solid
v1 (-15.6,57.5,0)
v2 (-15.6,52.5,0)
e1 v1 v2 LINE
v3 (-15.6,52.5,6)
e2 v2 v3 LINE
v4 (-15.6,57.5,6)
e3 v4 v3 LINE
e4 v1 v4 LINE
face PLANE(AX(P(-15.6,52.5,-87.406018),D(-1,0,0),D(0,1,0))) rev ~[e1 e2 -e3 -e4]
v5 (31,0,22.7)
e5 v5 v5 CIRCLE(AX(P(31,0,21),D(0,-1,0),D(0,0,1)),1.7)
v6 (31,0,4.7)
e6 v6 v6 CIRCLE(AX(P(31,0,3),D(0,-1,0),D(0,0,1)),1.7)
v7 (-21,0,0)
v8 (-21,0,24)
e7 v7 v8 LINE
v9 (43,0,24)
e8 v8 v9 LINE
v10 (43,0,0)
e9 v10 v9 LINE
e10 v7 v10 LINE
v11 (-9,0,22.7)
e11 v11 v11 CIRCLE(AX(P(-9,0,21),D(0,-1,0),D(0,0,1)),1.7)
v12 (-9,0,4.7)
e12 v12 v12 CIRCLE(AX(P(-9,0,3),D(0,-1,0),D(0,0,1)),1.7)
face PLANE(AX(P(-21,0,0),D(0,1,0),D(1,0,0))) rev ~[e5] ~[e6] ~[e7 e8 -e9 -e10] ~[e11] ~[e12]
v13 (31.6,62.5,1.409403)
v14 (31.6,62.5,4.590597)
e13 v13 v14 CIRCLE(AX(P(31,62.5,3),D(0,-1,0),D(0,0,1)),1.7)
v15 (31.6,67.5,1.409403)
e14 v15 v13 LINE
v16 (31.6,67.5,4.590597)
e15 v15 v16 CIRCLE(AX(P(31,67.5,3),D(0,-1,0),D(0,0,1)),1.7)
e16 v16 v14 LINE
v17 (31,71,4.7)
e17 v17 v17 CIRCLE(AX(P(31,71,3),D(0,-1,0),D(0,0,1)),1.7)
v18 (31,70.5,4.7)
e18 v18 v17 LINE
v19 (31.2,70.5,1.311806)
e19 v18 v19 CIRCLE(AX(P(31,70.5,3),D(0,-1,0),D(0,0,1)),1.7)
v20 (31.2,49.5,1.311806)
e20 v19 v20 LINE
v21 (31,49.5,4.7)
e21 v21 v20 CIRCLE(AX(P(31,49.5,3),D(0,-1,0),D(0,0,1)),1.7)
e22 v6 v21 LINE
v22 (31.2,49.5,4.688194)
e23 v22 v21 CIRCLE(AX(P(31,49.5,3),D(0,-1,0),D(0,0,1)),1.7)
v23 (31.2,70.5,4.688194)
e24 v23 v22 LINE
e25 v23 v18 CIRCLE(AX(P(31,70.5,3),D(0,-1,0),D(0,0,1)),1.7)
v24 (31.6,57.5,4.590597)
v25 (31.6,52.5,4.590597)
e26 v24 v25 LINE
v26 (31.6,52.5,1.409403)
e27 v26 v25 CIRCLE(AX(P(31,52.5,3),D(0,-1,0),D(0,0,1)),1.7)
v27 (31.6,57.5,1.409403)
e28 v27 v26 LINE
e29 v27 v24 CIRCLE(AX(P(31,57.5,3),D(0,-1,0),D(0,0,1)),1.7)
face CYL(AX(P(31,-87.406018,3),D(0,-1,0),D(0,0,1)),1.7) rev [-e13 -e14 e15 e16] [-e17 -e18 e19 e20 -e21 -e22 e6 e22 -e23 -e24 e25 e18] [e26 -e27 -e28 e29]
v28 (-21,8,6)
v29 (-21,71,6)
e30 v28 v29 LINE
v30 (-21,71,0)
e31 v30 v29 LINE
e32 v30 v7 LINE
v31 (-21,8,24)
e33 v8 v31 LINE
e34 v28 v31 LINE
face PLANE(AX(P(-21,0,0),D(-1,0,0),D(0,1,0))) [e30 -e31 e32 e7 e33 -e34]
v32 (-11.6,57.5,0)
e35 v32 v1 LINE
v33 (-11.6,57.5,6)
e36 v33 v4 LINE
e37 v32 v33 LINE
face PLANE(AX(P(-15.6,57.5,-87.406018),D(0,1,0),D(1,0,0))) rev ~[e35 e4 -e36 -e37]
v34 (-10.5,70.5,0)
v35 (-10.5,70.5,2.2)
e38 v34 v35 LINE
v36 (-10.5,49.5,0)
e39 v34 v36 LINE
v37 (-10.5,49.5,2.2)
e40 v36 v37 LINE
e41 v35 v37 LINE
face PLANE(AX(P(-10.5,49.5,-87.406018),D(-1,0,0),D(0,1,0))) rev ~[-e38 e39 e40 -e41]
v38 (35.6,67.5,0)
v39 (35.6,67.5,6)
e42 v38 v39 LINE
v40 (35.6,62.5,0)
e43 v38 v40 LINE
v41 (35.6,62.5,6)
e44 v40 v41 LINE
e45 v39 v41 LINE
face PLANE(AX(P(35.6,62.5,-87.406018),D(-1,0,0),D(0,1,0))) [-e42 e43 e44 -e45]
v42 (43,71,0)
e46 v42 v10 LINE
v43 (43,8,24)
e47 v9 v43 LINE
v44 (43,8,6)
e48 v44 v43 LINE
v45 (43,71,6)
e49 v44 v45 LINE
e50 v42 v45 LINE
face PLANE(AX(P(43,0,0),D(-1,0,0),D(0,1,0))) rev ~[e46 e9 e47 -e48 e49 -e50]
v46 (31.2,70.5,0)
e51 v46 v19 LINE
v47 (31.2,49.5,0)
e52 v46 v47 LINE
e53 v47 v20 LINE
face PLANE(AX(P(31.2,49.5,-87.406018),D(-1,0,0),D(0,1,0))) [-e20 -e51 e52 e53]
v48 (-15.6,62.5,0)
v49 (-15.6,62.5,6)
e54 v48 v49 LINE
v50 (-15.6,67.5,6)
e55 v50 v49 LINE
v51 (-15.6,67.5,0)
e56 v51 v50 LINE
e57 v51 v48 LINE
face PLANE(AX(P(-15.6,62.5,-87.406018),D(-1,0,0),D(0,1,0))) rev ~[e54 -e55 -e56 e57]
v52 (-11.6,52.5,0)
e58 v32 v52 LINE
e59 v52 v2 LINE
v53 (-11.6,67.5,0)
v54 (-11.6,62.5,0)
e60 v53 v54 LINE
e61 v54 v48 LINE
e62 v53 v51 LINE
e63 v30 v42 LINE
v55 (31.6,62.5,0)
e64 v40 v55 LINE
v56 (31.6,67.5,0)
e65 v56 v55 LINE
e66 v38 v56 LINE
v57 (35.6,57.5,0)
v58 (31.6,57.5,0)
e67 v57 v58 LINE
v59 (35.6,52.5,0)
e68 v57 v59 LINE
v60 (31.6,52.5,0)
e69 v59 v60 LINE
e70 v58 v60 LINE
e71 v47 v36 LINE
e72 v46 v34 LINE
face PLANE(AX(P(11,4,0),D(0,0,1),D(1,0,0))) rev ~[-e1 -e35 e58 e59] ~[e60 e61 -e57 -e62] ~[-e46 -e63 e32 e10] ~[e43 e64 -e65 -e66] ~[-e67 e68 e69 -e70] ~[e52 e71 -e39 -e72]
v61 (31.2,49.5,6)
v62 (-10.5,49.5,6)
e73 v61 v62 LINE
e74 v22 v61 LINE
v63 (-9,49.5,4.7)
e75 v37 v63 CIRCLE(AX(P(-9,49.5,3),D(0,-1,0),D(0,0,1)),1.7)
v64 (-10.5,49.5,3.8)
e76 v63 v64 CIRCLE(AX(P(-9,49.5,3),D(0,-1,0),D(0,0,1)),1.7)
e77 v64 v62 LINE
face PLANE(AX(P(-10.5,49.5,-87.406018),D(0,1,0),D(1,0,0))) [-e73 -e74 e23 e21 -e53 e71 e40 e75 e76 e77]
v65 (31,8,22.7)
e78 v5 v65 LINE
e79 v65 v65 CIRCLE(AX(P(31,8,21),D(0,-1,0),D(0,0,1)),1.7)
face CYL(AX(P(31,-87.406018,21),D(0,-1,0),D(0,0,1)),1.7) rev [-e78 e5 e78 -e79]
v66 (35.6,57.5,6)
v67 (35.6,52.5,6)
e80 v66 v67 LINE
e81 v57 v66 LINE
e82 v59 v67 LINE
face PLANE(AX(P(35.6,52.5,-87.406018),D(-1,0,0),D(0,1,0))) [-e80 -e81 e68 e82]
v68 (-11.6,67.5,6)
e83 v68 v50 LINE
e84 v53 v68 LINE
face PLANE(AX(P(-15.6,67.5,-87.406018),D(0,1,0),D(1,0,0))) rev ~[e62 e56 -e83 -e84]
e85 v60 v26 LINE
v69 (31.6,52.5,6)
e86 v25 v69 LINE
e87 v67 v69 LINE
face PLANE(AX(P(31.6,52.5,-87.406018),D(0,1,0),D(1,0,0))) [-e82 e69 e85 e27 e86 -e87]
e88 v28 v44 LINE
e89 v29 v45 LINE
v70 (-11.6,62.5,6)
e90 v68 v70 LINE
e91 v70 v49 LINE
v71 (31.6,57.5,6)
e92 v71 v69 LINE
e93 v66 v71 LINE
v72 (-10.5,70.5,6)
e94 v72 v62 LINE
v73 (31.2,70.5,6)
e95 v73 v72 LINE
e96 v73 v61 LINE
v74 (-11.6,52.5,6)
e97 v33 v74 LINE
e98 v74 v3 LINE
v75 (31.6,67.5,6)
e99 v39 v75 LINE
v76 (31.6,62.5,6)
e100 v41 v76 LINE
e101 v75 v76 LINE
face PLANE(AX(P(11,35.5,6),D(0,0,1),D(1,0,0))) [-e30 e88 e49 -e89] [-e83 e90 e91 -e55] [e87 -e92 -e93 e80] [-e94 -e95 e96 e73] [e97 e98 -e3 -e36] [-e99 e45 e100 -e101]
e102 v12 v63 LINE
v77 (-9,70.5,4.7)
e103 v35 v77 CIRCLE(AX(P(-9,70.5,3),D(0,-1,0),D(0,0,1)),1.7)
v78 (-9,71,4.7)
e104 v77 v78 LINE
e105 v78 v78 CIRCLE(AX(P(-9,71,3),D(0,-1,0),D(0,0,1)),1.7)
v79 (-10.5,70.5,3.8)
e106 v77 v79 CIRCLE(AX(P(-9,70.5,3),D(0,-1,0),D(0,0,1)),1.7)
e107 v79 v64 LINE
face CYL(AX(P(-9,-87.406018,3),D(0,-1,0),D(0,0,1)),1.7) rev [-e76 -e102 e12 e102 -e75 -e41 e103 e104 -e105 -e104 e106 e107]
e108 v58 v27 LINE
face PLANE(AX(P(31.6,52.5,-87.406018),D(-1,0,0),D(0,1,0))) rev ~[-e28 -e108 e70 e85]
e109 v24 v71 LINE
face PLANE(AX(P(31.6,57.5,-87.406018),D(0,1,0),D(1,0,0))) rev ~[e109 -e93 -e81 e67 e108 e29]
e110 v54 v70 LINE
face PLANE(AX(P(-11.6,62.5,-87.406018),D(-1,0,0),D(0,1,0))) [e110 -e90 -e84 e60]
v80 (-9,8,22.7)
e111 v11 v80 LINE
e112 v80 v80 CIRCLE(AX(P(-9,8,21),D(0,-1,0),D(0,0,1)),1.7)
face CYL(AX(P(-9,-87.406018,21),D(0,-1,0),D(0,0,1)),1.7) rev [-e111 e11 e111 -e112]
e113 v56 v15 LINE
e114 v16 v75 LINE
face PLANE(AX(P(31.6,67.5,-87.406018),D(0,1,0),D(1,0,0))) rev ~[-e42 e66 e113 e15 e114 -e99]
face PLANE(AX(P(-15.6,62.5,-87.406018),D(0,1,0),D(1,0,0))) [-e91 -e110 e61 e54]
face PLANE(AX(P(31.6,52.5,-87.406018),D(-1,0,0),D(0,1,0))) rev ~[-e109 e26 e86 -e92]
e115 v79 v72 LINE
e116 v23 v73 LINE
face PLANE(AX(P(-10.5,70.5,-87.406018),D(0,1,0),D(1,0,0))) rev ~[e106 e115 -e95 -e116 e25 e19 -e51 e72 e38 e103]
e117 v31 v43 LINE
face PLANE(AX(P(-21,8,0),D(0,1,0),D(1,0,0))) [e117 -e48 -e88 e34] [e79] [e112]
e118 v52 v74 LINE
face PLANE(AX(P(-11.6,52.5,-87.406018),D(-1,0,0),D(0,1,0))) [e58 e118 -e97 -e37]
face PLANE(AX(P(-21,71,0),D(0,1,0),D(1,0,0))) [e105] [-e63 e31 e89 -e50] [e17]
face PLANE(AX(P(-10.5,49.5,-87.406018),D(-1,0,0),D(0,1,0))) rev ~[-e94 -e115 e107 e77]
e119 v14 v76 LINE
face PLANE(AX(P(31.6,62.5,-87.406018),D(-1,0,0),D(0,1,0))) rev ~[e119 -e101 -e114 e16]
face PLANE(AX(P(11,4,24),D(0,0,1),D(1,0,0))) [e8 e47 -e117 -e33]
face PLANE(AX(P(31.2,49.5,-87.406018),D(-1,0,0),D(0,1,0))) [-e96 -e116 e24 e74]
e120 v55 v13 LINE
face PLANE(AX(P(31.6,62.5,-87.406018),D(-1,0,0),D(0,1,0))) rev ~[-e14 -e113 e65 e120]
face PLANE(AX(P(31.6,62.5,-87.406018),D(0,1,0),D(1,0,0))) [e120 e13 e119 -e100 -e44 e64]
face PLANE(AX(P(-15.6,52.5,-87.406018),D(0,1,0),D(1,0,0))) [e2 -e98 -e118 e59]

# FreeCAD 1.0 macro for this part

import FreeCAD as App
import Part
import Sketcher
from FreeCAD import Vector


def add_polygon(sketch, points):
    """Adds a closed chain of lines whose ends are joined by coincident constraints."""
    first, n = sketch.GeometryCount, len(points)
    for a, b in zip(points, points[1:] + points[:1]):
        sketch.addGeometry(Part.LineSegment(App.Vector(*a, 0), App.Vector(*b, 0)), False)
    for i in range(n):
        sketch.addConstraint(Sketcher.Constraint("Coincident", first + i, 2, first + (i + 1) % n, 1))

doc = App.newDocument("Part")
params = doc.addObject("Spreadsheet::Sheet", "Params")
for row, (alias, value) in enumerate([
    ("sketch1_width", "64 mm"),
    ("sketch1_height", "8 mm"),
    ("pad1_length", "24 mm"),
    ("sketch2_width", "64 mm"),
    ("sketch2_height", "71 mm"),
    ("pad2_length", "6 mm"),
    ("sketch3_height", "21 mm"),
    ("sketch3_width", "41.7 mm"),
    ("sketch4_width", "4 mm"),
    ("sketch4_height", "5 mm"),
    ("sketch5_diameter", "3.4 mm"),
], start=1):
    params.set(f"A{row}", alias)
    params.set(f"B{row}", "=" + value)
    params.setAlias(f"B{row}", alias)

body = doc.addObject("PartDesign::Body", "Body")

sketch1 = body.newObject("Sketcher::SketchObject", "Sketch")
sketch1.AttachmentSupport = (doc.getObject("XY_Plane"), [""])
sketch1.MapMode = "FlatFace"
add_polygon(sketch1, [(-21, 8), (-21, 0), (43, 0), (43, 8)])
sketch1.addConstraint([
    Sketcher.Constraint("Vertical", 0),
    Sketcher.Constraint("Horizontal", 1),
    Sketcher.Constraint("Vertical", 2),
    Sketcher.Constraint("Horizontal", 3),
    Sketcher.Constraint("PointOnObject", 0, 2, -1),
    Sketcher.Constraint("DistanceX", 1, 1, 1, 2, 64.0),
    Sketcher.Constraint("DistanceY", 0, 2, 0, 1, 8.0),
    Sketcher.Constraint("DistanceX", 0, 2, -1, 1, 21.0),
])
sketch1.setExpression("Constraints[9]", "Params.sketch1_width")
sketch1.setExpression("Constraints[10]", "Params.sketch1_height")
pad1 = body.newObject("PartDesign::Pad", "Pad")
pad1.Profile = sketch1
pad1.setExpression("Length", "Params.pad1_length")

sketch2 = body.newObject("Sketcher::SketchObject", "Sketch001")
sketch2.AttachmentSupport = (doc.getObject("XY_Plane"), [""])
sketch2.MapMode = "FlatFace"
add_polygon(sketch2, [(-21, 71), (-21, 0), (43, 0), (43, 71)])
sketch2.addConstraint([
    Sketcher.Constraint("Vertical", 0),
    Sketcher.Constraint("Horizontal", 1),
    Sketcher.Constraint("Vertical", 2),
    Sketcher.Constraint("Horizontal", 3),
    Sketcher.Constraint("PointOnObject", 0, 2, -1),
    Sketcher.Constraint("DistanceX", 1, 1, 1, 2, 64.0),
    Sketcher.Constraint("DistanceY", 0, 2, 0, 1, 71.0),
    Sketcher.Constraint("DistanceX", 0, 2, -1, 1, 21.0),
])
sketch2.setExpression("Constraints[9]", "Params.sketch2_width")
sketch2.setExpression("Constraints[10]", "Params.sketch2_height")
pad2 = body.newObject("PartDesign::Pad", "Pad001")
pad2.Profile = sketch2
pad2.setExpression("Length", "Params.pad2_length")

sketch3 = body.newObject("Sketcher::SketchObject", "Sketch002")
sketch3.AttachmentSupport = (doc.getObject("XY_Plane"), [""])
sketch3.MapMode = "FlatFace"
add_polygon(sketch3, [(-10.5, 70.5), (-10.5, 49.5), (31.2, 49.5), (31.2, 70.5)])
sketch3.addConstraint([
    Sketcher.Constraint("Vertical", 0),
    Sketcher.Constraint("Horizontal", 1),
    Sketcher.Constraint("Vertical", 2),
    Sketcher.Constraint("Horizontal", 3),
    Sketcher.Constraint("DistanceY", 0, 2, 0, 1, 21.0),
    Sketcher.Constraint("DistanceX", 1, 1, 1, 2, 41.7),
    Sketcher.Constraint("DistanceX", 0, 2, -1, 1, 10.5),
    Sketcher.Constraint("DistanceY", -1, 1, 0, 2, 49.5),
])
sketch3.setExpression("Constraints[8]", "Params.sketch3_height")
sketch3.setExpression("Constraints[9]", "Params.sketch3_width")
pocket1 = body.newObject("PartDesign::Pocket", "Pocket")
pocket1.Profile = sketch3
pocket1.Type = "ThroughAll"
pocket1.Midplane = True

sketch4 = body.newObject("Sketcher::SketchObject", "Sketch003")
sketch4.AttachmentSupport = (doc.getObject("XY_Plane"), [""])
sketch4.MapMode = "FlatFace"
add_polygon(sketch4, [(-15.6, 57.5), (-15.6, 52.5), (-11.6, 52.5), (-11.6, 57.5)])
add_polygon(sketch4, [(-15.6, 67.5), (-15.6, 62.5), (-11.6, 62.5), (-11.6, 67.5)])
add_polygon(sketch4, [(31.6, 57.5), (31.6, 52.5), (35.6, 52.5), (35.6, 57.5)])
add_polygon(sketch4, [(31.6, 67.5), (31.6, 62.5), (35.6, 62.5), (35.6, 67.5)])
sketch4.addConstraint([
    Sketcher.Constraint("Vertical", 0),
    Sketcher.Constraint("Horizontal", 1),
    Sketcher.Constraint("Vertical", 2),
    Sketcher.Constraint("Horizontal", 3),
    Sketcher.Constraint("Vertical", 4),
    Sketcher.Constraint("Horizontal", 5),
    Sketcher.Constraint("Vertical", 6),
    Sketcher.Constraint("Horizontal", 7),
    Sketcher.Constraint("Vertical", 8),
    Sketcher.Constraint("Horizontal", 9),
    Sketcher.Constraint("Vertical", 10),
    Sketcher.Constraint("Horizontal", 11),
    Sketcher.Constraint("Vertical", 12),
    Sketcher.Constraint("Horizontal", 13),
    Sketcher.Constraint("Vertical", 14),
    Sketcher.Constraint("Horizontal", 15),
    Sketcher.Constraint("Horizontal", 1, 2, 8, 2),
    Sketcher.Constraint("Horizontal", 3, 2, 10, 2),
    Sketcher.Constraint("Horizontal", 5, 2, 12, 2),
    Sketcher.Constraint("Horizontal", 7, 2, 14, 2),
    Sketcher.Constraint("Vertical", 3, 2, 4, 2),
    Sketcher.Constraint("Vertical", 2, 2, 5, 2),
    Sketcher.Constraint("Vertical", 11, 2, 12, 2),
    Sketcher.Constraint("Vertical", 10, 2, 13, 2),
    Sketcher.Constraint("Equal", 7, 9),
    Sketcher.Constraint("Equal", 2, 4),
    Sketcher.Constraint("DistanceX", 1, 1, 1, 2, 4.0),
    Sketcher.Constraint("DistanceY", 0, 2, 0, 1, 5.0),
    Sketcher.Constraint("DistanceY", 3, 2, 4, 2, 5.0),
    Sketcher.Constraint("DistanceX", 0, 2, -1, 1, 15.6),
    Sketcher.Constraint("DistanceY", -1, 1, 0, 2, 52.5),
    Sketcher.Constraint("DistanceX", -1, 1, 8, 2, 31.6),
])
sketch4.setExpression("Constraints[42]", "Params.sketch4_width")
sketch4.setExpression("Constraints[43]", "Params.sketch4_height")
pocket2 = body.newObject("PartDesign::Pocket", "Pocket001")
pocket2.Profile = sketch4
pocket2.Type = "ThroughAll"
pocket2.Midplane = True

sketch5 = body.newObject("Sketcher::SketchObject", "Sketch004")
sketch5.AttachmentSupport = (doc.getObject("XZ_Plane"), [""])
sketch5.MapMode = "FlatFace"
sketch5.addGeometry([
    Part.Circle(Vector(-9, 3, 0), Vector(0, 0, 1), 1.7),
    Part.Circle(Vector(-9, 21, 0), Vector(0, 0, 1), 1.7),
    Part.Circle(Vector(31, 3, 0), Vector(0, 0, 1), 1.7),
    Part.Circle(Vector(31, 21, 0), Vector(0, 0, 1), 1.7),
], False)
sketch5.addConstraint([
    Sketcher.Constraint("Equal", 0, 1),
    Sketcher.Constraint("Equal", 1, 2),
    Sketcher.Constraint("Equal", 2, 3),
    Sketcher.Constraint("Horizontal", 0, 3, 2, 3),
    Sketcher.Constraint("Horizontal", 1, 3, 3, 3),
    Sketcher.Constraint("Vertical", 0, 3, 1, 3),
    Sketcher.Constraint("Vertical", 2, 3, 3, 3),
    Sketcher.Constraint("Diameter", 0, 3.4),
    Sketcher.Constraint("DistanceX", 0, 3, -1, 1, 9.0),
    Sketcher.Constraint("DistanceY", -1, 1, 0, 3, 3.0),
    Sketcher.Constraint("DistanceY", -1, 1, 1, 3, 21.0),
    Sketcher.Constraint("DistanceX", -1, 1, 2, 3, 31.0),
])
sketch5.setExpression("Constraints[7]", "Params.sketch5_diameter")
pocket3 = body.newObject("PartDesign::Pocket", "Pocket002")
pocket3.Profile = sketch5
pocket3.Type = "ThroughAll"
pocket3.Midplane = True

doc.recompute()
